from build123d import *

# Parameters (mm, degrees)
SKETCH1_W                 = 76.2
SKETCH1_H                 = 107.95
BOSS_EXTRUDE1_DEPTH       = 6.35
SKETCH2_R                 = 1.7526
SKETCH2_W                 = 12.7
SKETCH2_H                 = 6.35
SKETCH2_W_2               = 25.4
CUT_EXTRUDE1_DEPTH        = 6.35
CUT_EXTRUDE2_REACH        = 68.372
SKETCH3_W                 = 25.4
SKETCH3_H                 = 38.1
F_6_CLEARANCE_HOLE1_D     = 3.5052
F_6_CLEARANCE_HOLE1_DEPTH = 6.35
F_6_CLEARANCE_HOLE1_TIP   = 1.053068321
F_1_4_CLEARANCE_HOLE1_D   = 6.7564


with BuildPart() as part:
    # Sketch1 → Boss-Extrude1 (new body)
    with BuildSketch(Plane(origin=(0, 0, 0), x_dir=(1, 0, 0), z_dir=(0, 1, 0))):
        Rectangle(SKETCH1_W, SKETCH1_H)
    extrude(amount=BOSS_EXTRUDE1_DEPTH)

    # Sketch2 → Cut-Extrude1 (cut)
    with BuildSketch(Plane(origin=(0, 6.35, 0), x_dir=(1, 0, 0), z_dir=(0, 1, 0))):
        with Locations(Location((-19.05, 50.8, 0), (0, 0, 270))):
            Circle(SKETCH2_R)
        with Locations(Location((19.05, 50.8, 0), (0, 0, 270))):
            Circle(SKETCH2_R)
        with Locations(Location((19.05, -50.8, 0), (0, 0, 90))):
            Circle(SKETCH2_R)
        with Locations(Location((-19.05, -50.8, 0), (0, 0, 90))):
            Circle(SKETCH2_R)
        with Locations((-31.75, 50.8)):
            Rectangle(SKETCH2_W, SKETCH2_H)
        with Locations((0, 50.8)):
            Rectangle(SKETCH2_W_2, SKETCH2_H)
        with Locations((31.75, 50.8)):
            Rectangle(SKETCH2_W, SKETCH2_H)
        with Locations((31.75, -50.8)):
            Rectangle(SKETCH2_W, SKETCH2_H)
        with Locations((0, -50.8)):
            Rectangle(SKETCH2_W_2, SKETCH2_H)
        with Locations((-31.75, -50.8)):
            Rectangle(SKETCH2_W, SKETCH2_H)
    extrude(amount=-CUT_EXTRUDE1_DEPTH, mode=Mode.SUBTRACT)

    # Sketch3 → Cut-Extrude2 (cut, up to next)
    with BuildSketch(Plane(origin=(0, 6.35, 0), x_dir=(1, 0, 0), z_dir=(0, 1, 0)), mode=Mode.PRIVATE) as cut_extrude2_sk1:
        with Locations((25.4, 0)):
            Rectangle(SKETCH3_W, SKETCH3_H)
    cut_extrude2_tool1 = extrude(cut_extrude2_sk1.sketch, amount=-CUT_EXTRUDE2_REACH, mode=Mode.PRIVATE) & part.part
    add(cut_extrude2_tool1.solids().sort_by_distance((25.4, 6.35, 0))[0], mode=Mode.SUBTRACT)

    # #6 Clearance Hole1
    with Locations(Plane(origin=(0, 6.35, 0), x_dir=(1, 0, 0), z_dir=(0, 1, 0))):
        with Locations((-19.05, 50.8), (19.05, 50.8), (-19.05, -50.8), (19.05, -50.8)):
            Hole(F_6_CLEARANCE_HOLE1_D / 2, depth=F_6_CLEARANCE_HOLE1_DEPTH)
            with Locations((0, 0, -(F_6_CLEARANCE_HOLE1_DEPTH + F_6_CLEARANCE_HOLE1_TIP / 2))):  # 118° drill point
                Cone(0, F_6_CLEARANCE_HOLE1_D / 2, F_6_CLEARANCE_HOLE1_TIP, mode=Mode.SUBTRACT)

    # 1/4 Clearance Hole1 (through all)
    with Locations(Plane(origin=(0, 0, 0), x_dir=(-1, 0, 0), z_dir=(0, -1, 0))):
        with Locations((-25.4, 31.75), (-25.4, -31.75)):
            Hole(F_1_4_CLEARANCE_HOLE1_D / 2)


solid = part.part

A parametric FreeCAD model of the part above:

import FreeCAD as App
import Part
import Sketcher
Q = App.Units.Quantity


def add_polygon(sketch, points):
    """Adds a closed chain of lines whose ends are joined by coincident constraints."""
    first, n = sketch.GeometryCount, len(points)
    for a, b in zip(points, points[1:] + points[:1]):
        sketch.addGeometry(Part.LineSegment(App.Vector(*a, 0), App.Vector(*b, 0)), False)
    for i in range(n):
        sketch.addConstraint(Sketcher.Constraint("Coincident", first + i, 2, first + (i + 1) % n, 1))

doc = App.newDocument("Part")
body = doc.addObject("PartDesign::Body", "Body")

sketch1 = body.newObject("Sketcher::SketchObject", "Sketch")
sketch1.AttachmentSupport = (doc.getObject("XZ_Plane"), [""])
sketch1.MapMode = "FlatFace"
add_polygon(sketch1, [(-38, -54), (-38, 54), (38, 54), (38, -54)])
sketch1.addConstraint([
    Sketcher.Constraint("Vertical", 0),
    Sketcher.Constraint("Horizontal", 1),
    Sketcher.Constraint("Vertical", 2),
    Sketcher.Constraint("Horizontal", 3),
    Sketcher.Constraint("Symmetric", 0, 2, 2, 2, -1, 1),
    Sketcher.Constraint("DistanceX", 1, 1, 1, 2, Q("3 in")),
    Sketcher.Constraint("DistanceY", 0, 1, 0, 2, Q("4.25 in")),
])
pad1 = body.newObject("PartDesign::Pad", "Pad")
pad1.Profile = sketch1
pad1.Length = Q("0.25 in")
pad1.Reversed = True

sketch2 = body.newObject("Sketcher::SketchObject", "Sketch001")
sketch2.AttachmentSupport = (doc.getObject("XZ_Plane"), [""])
sketch2.MapMode = "FlatFace"
sketch2.AttachmentOffset = App.Placement(App.Vector(0, 0, -0.25 * 25.4), App.Rotation())
sketch2.addGeometry(Part.Circle(App.Vector(-19.1, -50.8, 0), App.Vector(0, 0, 1), 1.8), False)
sketch2.addGeometry(Part.Circle(App.Vector(19.1, -50.8, 0), App.Vector(0, 0, 1), 1.8), False)
sketch2.addGeometry(Part.Circle(App.Vector(19.1, 50.8, 0), App.Vector(0, 0, 1), 1.8), False)
sketch2.addGeometry(Part.Circle(App.Vector(-19.1, 50.8, 0), App.Vector(0, 0, 1), 1.8), False)
add_polygon(sketch2, [(-38.1, -54), (-38.1, -47.6), (-25.4, -47.6), (-25.4, -54)])
add_polygon(sketch2, [(-12.7, -54), (-12.7, -47.6), (12.7, -47.6), (12.7, -54)])
add_polygon(sketch2, [(25.4, -54), (25.4, -47.6), (38.1, -47.6), (38.1, -54)])
add_polygon(sketch2, [(25.4, 47.6), (25.4, 54), (38.1, 54), (38.1, 47.6)])
add_polygon(sketch2, [(-12.7, 47.6), (-12.7, 54), (12.7, 54), (12.7, 47.6)])
add_polygon(sketch2, [(-38.1, 47.6), (-38.1, 54), (-25.4, 54), (-25.4, 47.6)])
sketch2.addConstraint([
    Sketcher.Constraint("Vertical", 4),
    Sketcher.Constraint("Horizontal", 5),
    Sketcher.Constraint("Vertical", 6),
    Sketcher.Constraint("Horizontal", 7),
    Sketcher.Constraint("Vertical", 8),
    Sketcher.Constraint("Horizontal", 9),
    Sketcher.Constraint("Vertical", 10),
    Sketcher.Constraint("Horizontal", 11),
    Sketcher.Constraint("Vertical", 12),
    Sketcher.Constraint("Horizontal", 13),
    Sketcher.Constraint("Vertical", 14),
    Sketcher.Constraint("Horizontal", 15),
    Sketcher.Constraint("Vertical", 16),
    Sketcher.Constraint("Horizontal", 17),
    Sketcher.Constraint("Vertical", 18),
    Sketcher.Constraint("Horizontal", 19),
    Sketcher.Constraint("Vertical", 20),
    Sketcher.Constraint("Horizontal", 21),
    Sketcher.Constraint("Vertical", 22),
    Sketcher.Constraint("Horizontal", 23),
    Sketcher.Constraint("Vertical", 24),
    Sketcher.Constraint("Horizontal", 25),
    Sketcher.Constraint("Vertical", 26),
    Sketcher.Constraint("Horizontal", 27),
    Sketcher.Constraint("Equal", 0, 1),
    Sketcher.Constraint("Equal", 1, 2),
    Sketcher.Constraint("Equal", 2, 3),
    Sketcher.Constraint("Symmetric", 0, 3, 2, 3, -1, 1),
    Sketcher.Constraint("Symmetric", 1, 3, 3, 3, -1, 1),
    Sketcher.Constraint("Symmetric", 6, 2, 16, 2, -1, 1),
    Sketcher.Constraint("Symmetric", 4, 2, 18, 2, -1, 1),
    Sketcher.Constraint("Symmetric", 10, 2, 20, 2, -1, 1),
    Sketcher.Constraint("Symmetric", 8, 2, 22, 2, -1, 1),
    Sketcher.Constraint("Symmetric", 14, 2, 24, 2, -1, 1),
    Sketcher.Constraint("Symmetric", 12, 2, 26, 2, -1, 1),
    Sketcher.Constraint("Symmetric", 0, 3, 1, 3, -2),
    Sketcher.Constraint("Symmetric", 5, 2, 12, 2, -2),
    Sketcher.Constraint("Symmetric", 7, 2, 14, 2, -2),
    Sketcher.Constraint("Horizontal", 5, 2, 8, 2),
    Sketcher.Constraint("Horizontal", 7, 2, 10, 2),
    Sketcher.Constraint("Vertical", 11, 2, 20, 2),
    Sketcher.Constraint("DistanceX", 9, 1, 9, 2, Q("1 in")),
    Sketcher.Constraint("Diameter", 0, Q("0.138 in")),
    Sketcher.Constraint("DistanceX", 5, 1, 5, 2, Q("0.5 in")),
    Sketcher.Constraint("DistanceY", 0, 3, -1, 1, Q("2 in")),
    Sketcher.Constraint("DistanceX", 5, 2, -1, 1, Q("1 in")),
    Sketcher.Constraint("DistanceY", 12, 2, 16, 2, Q("4 in")),
    Sketcher.Constraint("DistanceY", 4, 1, 4, 2, Q("0.25 in")),
    Sketcher.Constraint("DistanceX", 0, 3, 1, 3, Q("1.5 in")),
])
pocket1 = body.newObject("PartDesign::Pocket", "Pocket")
pocket1.Profile = sketch2
pocket1.Length = Q("0.25 in")
pocket1.Reversed = True

sketch3 = body.newObject("Sketcher::SketchObject", "Sketch002")
sketch3.AttachmentSupport = (doc.getObject("XZ_Plane"), [""])
sketch3.MapMode = "FlatFace"
sketch3.AttachmentOffset = App.Placement(App.Vector(0, 0, -0.25 * 25.4), App.Rotation())
add_polygon(sketch3, [(13, -19), (13, 19), (38, 19), (38, -19)])
sketch3.addConstraint([
    Sketcher.Constraint("Vertical", 0),
    Sketcher.Constraint("Horizontal", 1),
    Sketcher.Constraint("Vertical", 2),
    Sketcher.Constraint("Horizontal", 3),
    Sketcher.Constraint("DistanceX", 1, 1, 1, 2, Q("1 in")),
    Sketcher.Constraint("DistanceY", 0, 1, 0, 2, Q("1.5 in")),
    Sketcher.Constraint("DistanceX", -1, 1, 0, 2, Q("0.5 in")),
    Sketcher.Constraint("DistanceY", -1, 1, 0, 2, Q("0.75 in")),
])
pocket2 = body.newObject("PartDesign::Pocket", "Pocket001")
pocket2.Profile = sketch3
pocket2.Type = "UpToFirst"
pocket2.Reversed = True

sketch4 = body.newObject("Sketcher::SketchObject", "Sketch003")
sketch4.AttachmentSupport = (doc.getObject("XZ_Plane"), [""])
sketch4.MapMode = "FlatFace"
sketch4.AttachmentOffset = App.Placement(App.Vector(0, 0, -0.25 * 25.4), App.Rotation())
sketch4.addGeometry([
    Part.Circle(App.Vector(-19.1, -50.8, 0), App.Vector(0, 0, 1), 1.8),
    Part.Circle(App.Vector(19.1, -50.8, 0), App.Vector(0, 0, 1), 1.8),
    Part.Circle(App.Vector(-19.1, 50.8, 0), App.Vector(0, 0, 1), 1.8),
    Part.Circle(App.Vector(19.1, 50.8, 0), App.Vector(0, 0, 1), 1.8),
], False)
sketch4.addConstraint([
    Sketcher.Constraint("Equal", 0, 1),
    Sketcher.Constraint("Equal", 1, 2),
    Sketcher.Constraint("Equal", 2, 3),
    Sketcher.Constraint("Symmetric", 1, 3, 2, 3, -1, 1),
    Sketcher.Constraint("Symmetric", 0, 3, 3, 3, -1, 1),
    Sketcher.Constraint("Symmetric", 0, 3, 1, 3, -2),
    Sketcher.Constraint("Diameter", 0, Q("0.138 in")),
    Sketcher.Constraint("DistanceY", 0, 3, -1, 1, Q("2 in")),
    Sketcher.Constraint("DistanceX", 0, 3, 1, 3, Q("1.5 in")),
])
doc.recompute()
hole = body.newObject("PartDesign::Hole", "Hole")
hole.Profile = sketch4
hole.ThreadType = "None"
hole.Diameter = Q("0.138 in")
hole.DepthType = "Dimension"
hole.Depth = Q("0.25 in")
hole.DrillPoint = "Angled"
hole.DrillPointAngle = 118
hole.Reversed = True

sketch5 = body.newObject("Sketcher::SketchObject", "Sketch004")
sketch5.AttachmentSupport = (doc.getObject("XZ_Plane"), [""])
sketch5.MapMode = "FlatFace"
sketch5.addGeometry([
    Part.Circle(App.Vector(25.4, -31.8, 0), App.Vector(0, 0, 1), 3.4),
    Part.Circle(App.Vector(25.4, 31.8, 0), App.Vector(0, 0, 1), 3.4),
], False)
sketch5.addConstraint([
    Sketcher.Constraint("Equal", 0, 1),
    Sketcher.Constraint("Symmetric", 0, 3, 1, 3, -1),
    Sketcher.Constraint("Diameter", 0, Q("0.266 in")),
    Sketcher.Constraint("DistanceX", -1, 1, 0, 3, Q("1 in")),
    Sketcher.Constraint("DistanceY", 0, 3, 1, 3, Q("2.5 in")),
])
doc.recompute()
hole2 = body.newObject("PartDesign::Hole", "Hole001")
hole2.Profile = sketch5
hole2.ThreadType = "None"
hole2.Diameter = Q("0.266 in")
hole2.DepthType = "ThroughAll"

doc.recompute()
